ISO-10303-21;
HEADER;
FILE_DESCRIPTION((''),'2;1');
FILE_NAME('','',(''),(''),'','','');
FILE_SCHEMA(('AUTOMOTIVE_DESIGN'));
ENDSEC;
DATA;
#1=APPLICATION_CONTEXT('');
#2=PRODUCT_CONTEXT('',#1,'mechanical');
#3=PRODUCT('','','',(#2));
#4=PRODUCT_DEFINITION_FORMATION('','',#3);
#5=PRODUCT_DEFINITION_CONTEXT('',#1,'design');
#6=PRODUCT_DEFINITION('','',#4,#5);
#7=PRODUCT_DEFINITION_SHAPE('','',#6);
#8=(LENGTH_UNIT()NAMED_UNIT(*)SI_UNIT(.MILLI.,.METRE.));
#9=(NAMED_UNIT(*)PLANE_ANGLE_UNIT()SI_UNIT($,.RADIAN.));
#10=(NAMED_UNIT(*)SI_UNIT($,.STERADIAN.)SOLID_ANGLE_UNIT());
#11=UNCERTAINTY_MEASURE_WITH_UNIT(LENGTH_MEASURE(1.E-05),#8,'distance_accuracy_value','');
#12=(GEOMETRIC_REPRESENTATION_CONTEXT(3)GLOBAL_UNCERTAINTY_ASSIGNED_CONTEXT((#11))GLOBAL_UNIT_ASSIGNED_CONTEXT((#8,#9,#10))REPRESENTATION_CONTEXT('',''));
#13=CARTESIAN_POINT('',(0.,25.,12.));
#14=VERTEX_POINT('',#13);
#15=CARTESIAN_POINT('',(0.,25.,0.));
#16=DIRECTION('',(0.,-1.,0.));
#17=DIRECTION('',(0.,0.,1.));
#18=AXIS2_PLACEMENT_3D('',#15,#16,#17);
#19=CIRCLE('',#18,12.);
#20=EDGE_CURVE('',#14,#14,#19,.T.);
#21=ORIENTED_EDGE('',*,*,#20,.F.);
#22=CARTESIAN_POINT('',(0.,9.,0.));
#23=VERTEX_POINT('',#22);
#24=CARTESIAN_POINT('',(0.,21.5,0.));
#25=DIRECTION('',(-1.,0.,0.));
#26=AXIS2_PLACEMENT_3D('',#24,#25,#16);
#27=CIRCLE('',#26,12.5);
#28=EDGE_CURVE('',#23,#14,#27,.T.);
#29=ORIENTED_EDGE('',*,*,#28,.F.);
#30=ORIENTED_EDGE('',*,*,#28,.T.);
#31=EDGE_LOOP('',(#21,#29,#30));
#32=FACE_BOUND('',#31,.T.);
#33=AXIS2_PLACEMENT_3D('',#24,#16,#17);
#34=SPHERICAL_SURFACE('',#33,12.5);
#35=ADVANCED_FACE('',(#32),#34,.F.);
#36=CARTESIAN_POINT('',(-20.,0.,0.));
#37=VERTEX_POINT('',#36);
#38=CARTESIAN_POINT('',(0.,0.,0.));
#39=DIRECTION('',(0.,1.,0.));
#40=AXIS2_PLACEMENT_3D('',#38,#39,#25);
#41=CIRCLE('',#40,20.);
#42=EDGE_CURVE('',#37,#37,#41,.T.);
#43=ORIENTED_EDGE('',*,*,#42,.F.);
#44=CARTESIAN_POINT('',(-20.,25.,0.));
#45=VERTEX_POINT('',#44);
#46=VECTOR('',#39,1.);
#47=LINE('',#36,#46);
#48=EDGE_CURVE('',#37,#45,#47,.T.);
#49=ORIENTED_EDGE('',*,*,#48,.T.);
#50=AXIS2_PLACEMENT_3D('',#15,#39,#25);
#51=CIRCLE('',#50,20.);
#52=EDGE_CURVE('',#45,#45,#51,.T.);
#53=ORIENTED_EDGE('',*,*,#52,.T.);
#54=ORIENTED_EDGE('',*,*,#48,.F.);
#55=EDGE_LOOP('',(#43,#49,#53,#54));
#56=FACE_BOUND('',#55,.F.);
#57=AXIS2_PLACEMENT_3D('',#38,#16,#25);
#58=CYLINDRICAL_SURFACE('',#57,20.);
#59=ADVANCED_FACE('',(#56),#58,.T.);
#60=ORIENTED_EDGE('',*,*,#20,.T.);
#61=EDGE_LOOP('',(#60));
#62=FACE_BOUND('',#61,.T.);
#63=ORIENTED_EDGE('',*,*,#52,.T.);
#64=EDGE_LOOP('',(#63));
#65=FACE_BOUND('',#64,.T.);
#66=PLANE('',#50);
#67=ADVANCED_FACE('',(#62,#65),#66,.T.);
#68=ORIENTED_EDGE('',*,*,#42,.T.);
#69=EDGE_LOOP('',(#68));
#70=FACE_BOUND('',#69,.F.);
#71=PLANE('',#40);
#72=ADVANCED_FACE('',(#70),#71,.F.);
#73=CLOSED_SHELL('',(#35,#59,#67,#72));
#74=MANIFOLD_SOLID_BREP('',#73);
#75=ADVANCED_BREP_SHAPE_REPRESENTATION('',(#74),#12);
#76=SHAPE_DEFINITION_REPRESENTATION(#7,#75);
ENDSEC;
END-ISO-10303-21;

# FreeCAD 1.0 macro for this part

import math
import FreeCAD as App
import Part
import Sketcher
from FreeCAD import Vector
Q = App.Units.Quantity

doc = App.newDocument("Part")
body = doc.addObject("PartDesign::Body", "Body")

sketch1 = body.newObject("Sketcher::SketchObject", "Sketch")
sketch1.AttachmentSupport = (doc.getObject("XZ_Plane"), [""])
sketch1.MapMode = "FlatFace"
sketch1.addGeometry(Part.Circle(Vector(0, 0, 0), Vector(0, 0, 1), 20), False)
sketch1.addConstraint([
    Sketcher.Constraint("Coincident", 0, 3, -1, 1),
    Sketcher.Constraint("Diameter", 0, Q("40 mm")),
])
pad1 = body.newObject("PartDesign::Pad", "Pad")
pad1.Profile = sketch1
pad1.Length = 25
pad1.Reversed = True

sketch2 = body.newObject("Sketcher::SketchObject", "Sketch001")
sketch2.AttachmentSupport = (doc.getObject("YZ_Plane"), [""])
sketch2.MapMode = "FlatFace"
sketch2.addGeometry([
    Part.ArcOfCircle(Part.Circle(Vector(21.5, 0, 0), Vector(0, 0, 1), 12.5), math.radians(0), math.radians(180)),
    Part.LineSegment(Vector(9, 0, 0), Vector(34, 0, 0)),
], False)
sketch2.addConstraint([
    Sketcher.Constraint("Coincident", 0, 1, 1, 2),
    Sketcher.Constraint("Coincident", 1, 1, 0, 2),
    Sketcher.Constraint("Horizontal", 1),
    Sketcher.Constraint("PointOnObject", 0, 3, -1),
    Sketcher.Constraint("PointOnObject", 0, 1, -1),
    Sketcher.Constraint("Radius", 0, Q("12.5 mm")),
    Sketcher.Constraint("DistanceX", -1, 1, 0, 1, Q("34 mm")),
])
groove = body.newObject("PartDesign::Groove", "Groove")
groove.Profile = sketch2
groove.ReferenceAxis = (sketch2, ["H_Axis"])
groove.Angle = 360

doc.recompute()
